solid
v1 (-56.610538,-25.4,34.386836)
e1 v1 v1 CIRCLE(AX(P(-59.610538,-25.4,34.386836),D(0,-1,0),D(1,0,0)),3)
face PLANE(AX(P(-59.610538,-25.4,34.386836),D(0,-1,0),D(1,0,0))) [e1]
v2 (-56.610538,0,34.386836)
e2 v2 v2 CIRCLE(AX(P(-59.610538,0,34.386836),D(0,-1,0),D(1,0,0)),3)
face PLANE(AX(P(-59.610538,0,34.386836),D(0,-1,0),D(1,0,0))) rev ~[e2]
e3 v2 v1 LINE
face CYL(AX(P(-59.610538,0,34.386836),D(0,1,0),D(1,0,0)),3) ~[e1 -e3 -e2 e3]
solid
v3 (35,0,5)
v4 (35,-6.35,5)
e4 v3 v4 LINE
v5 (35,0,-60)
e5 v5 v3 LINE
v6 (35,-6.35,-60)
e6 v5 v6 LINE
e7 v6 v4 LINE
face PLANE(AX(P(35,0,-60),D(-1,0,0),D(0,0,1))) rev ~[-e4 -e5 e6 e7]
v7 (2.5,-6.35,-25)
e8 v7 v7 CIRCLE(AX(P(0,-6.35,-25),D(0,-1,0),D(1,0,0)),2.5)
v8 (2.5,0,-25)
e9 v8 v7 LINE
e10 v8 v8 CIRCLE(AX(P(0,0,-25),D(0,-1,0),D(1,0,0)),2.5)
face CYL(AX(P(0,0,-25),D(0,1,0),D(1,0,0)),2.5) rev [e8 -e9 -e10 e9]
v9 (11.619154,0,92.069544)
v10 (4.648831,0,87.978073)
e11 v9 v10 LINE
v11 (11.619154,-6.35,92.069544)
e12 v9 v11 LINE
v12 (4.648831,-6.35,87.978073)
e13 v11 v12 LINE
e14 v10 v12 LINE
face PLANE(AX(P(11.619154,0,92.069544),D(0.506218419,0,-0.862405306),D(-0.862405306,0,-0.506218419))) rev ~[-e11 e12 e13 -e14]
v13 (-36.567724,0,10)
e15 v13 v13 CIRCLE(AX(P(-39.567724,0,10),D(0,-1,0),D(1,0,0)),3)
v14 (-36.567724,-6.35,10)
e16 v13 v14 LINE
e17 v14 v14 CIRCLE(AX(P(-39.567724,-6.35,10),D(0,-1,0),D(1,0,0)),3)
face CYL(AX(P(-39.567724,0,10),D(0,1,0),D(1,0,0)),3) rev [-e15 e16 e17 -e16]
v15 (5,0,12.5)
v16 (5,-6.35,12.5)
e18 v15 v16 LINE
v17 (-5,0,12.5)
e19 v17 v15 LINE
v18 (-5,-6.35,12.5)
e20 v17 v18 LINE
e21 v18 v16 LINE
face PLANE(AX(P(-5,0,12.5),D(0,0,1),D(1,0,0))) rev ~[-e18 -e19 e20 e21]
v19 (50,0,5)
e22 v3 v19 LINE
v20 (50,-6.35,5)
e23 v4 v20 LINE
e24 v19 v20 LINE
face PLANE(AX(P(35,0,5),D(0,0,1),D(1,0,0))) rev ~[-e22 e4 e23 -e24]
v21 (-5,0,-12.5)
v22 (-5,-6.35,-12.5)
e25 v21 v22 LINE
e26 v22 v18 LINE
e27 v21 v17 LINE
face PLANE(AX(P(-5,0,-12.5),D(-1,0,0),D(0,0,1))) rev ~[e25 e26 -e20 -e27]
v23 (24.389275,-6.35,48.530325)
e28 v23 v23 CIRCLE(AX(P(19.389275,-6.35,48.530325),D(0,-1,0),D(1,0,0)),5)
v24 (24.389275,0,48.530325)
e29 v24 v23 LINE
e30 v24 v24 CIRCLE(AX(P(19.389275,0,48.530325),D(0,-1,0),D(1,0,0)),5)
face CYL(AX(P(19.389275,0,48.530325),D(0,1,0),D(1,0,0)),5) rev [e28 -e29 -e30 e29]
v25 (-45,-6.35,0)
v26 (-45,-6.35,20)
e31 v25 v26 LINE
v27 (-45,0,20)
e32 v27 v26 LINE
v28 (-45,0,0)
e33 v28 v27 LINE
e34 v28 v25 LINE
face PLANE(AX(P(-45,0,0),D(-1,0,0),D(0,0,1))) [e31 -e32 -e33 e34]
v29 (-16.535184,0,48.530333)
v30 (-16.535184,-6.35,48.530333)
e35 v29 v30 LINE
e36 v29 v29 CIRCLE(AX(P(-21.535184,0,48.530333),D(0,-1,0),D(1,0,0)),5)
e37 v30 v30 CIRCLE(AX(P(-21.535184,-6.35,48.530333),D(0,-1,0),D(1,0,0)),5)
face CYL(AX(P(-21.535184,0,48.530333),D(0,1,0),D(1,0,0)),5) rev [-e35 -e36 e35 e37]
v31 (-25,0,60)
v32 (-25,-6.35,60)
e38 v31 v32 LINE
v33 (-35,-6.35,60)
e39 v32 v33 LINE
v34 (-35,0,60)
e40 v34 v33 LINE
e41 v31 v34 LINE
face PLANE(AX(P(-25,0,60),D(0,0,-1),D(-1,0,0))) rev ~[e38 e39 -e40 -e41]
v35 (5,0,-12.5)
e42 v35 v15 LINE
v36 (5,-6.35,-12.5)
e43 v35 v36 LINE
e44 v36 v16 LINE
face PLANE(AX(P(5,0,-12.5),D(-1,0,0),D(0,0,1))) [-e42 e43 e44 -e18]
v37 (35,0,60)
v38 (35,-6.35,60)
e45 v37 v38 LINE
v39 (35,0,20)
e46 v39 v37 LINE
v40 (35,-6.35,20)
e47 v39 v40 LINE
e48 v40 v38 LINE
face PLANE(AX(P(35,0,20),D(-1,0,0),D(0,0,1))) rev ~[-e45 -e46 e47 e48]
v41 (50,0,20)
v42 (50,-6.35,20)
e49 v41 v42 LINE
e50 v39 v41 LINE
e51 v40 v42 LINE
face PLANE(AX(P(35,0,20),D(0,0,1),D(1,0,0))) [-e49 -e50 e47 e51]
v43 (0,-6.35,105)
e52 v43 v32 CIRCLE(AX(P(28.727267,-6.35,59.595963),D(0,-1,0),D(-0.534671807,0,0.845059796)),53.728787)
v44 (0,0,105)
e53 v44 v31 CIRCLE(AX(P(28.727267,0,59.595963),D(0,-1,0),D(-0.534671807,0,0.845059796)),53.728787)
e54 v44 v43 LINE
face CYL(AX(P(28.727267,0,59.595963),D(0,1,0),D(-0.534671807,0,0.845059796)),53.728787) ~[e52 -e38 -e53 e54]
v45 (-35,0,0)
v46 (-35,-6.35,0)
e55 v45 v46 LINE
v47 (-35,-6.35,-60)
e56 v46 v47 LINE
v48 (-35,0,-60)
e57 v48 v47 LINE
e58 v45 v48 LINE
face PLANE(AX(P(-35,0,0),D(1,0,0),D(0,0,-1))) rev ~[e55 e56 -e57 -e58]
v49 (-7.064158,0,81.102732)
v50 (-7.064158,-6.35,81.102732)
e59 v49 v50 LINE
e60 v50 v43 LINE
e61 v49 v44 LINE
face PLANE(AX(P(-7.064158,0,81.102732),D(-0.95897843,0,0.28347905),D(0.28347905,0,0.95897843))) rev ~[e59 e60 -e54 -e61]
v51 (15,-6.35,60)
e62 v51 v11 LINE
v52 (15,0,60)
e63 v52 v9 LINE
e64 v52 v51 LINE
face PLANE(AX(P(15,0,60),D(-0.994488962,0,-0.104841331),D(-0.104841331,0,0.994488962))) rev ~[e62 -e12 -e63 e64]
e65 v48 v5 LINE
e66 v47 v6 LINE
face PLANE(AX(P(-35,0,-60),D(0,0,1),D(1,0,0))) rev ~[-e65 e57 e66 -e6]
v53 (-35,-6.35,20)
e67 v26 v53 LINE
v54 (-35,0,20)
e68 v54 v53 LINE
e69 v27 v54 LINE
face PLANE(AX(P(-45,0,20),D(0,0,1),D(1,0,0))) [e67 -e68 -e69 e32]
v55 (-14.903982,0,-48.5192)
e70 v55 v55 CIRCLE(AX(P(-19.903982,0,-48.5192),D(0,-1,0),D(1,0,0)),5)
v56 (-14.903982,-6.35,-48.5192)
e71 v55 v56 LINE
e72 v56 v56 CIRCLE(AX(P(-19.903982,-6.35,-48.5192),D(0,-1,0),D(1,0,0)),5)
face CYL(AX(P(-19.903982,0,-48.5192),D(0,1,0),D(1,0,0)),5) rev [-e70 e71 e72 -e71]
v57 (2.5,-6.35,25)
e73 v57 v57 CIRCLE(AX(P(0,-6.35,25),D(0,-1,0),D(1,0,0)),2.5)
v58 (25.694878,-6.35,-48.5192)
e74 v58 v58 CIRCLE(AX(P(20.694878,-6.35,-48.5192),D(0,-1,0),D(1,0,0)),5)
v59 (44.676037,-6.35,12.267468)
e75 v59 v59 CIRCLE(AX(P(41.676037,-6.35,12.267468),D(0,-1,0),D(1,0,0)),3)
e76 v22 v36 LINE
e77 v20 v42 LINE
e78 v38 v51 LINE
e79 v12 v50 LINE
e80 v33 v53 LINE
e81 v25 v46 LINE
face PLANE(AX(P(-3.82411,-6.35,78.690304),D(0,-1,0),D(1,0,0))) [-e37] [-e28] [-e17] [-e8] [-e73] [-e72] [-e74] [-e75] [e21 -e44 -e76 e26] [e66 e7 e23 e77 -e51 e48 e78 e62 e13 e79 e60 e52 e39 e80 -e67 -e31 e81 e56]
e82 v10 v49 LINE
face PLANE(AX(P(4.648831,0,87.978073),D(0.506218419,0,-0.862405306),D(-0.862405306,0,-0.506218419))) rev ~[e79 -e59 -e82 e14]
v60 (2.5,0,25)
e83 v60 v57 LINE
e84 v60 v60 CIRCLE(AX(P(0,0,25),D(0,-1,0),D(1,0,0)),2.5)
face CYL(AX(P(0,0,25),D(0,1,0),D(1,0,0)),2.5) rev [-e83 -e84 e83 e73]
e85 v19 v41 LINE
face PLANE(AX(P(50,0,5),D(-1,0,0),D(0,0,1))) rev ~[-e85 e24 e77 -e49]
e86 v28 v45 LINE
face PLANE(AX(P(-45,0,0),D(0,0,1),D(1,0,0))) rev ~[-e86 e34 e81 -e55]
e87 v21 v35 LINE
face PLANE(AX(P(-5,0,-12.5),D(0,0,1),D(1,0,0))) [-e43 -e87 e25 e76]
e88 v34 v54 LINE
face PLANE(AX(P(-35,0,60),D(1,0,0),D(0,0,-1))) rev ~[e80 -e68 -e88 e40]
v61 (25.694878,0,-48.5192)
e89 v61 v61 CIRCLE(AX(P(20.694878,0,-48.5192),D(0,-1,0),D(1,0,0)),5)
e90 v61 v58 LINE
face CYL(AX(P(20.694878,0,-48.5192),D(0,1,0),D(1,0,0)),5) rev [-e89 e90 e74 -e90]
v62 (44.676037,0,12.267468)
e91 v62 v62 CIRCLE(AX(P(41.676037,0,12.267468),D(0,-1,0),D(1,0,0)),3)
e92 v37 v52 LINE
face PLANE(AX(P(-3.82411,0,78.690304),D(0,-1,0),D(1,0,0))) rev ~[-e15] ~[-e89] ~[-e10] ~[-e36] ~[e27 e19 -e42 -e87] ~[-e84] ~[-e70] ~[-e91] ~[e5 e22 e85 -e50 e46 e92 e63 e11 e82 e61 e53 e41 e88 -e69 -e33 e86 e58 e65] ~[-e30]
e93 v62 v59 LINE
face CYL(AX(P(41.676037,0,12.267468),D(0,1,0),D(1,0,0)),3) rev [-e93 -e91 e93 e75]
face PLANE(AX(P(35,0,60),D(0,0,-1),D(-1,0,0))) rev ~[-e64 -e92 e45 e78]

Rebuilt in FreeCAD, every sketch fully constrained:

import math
import FreeCAD as App
import Part
import Sketcher
from FreeCAD import Vector
Q = App.Units.Quantity

doc = App.newDocument("Part")
body = doc.addObject("PartDesign::Body", "Body")

# Sketch on XZ plane
sketch1 = body.newObject("Sketcher::SketchObject", "Sketch")
sketch1.AttachmentSupport = (doc.getObject("XZ_Plane"), [""])
sketch1.MapMode = "FlatFace"
sketch1.addGeometry([
    Part.LineSegment(Vector(15, 60, 0), Vector(11.619154, 92.069544, 0)),  # 0
    Part.LineSegment(Vector(11.619154, 92.069544, 0), Vector(4.648831, 87.978073, 0)),  # 1
    Part.LineSegment(Vector(4.648831, 87.978073, 0), Vector(-7.064158, 81.102732, 0)),  # 2
    Part.LineSegment(Vector(-7.064158, 81.102732, 0), Vector(0, 105, 0)),  # 3
    Part.ArcOfCircle(Part.Circle(Vector(28.727267, 59.595963, 0), Vector(0, 0, 1), 53.728787), math.radians(122.321657), math.radians(179.569135)),  # 4
    Part.LineSegment(Vector(-25, 60, 0), Vector(-35, 60, 0)),  # 5
    Part.LineSegment(Vector(-35, 60, 0), Vector(-35, 20, 0)),  # 6
    Part.LineSegment(Vector(-35, 20, 0), Vector(-45, 20, 0)),  # 7
    Part.LineSegment(Vector(-45, 20, 0), Vector(-45, 0, 0)),  # 8
    Part.LineSegment(Vector(-45, 0, 0), Vector(-35, 0, 0)),  # 9
    Part.LineSegment(Vector(-35, 0, 0), Vector(-35, -60, 0)),  # 10
    Part.LineSegment(Vector(-35, -60, 0), Vector(35, -60, 0)),  # 11
    Part.LineSegment(Vector(35, -60, 0), Vector(35, 5, 0)),  # 12
    Part.LineSegment(Vector(35, 5, 0), Vector(50, 5, 0)),  # 13
    Part.LineSegment(Vector(50, 5, 0), Vector(50, 20, 0)),  # 14
    Part.LineSegment(Vector(50, 20, 0), Vector(35, 20, 0)),  # 15
    Part.LineSegment(Vector(35, 20, 0), Vector(35, 60, 0)),  # 16
    Part.LineSegment(Vector(35, 60, 0), Vector(15, 60, 0)),  # 17
    Part.Circle(Vector(-19.903982, -48.5192, 0), Vector(0, 0, 1), 5),  # 18
    Part.Circle(Vector(0, -25, 0), Vector(0, 0, 1), 2.5),  # 19
    Part.LineSegment(Vector(5, -12.5, 0), Vector(-5, -12.5, 0)),  # 20
    Part.LineSegment(Vector(-5, -12.5, 0), Vector(-5, 12.5, 0)),  # 21
    Part.LineSegment(Vector(-5, 12.5, 0), Vector(5, 12.5, 0)),  # 22
    Part.LineSegment(Vector(5, 12.5, 0), Vector(5, -12.5, 0)),  # 23
    Part.Circle(Vector(20.694878, -48.5192, 0), Vector(0, 0, 1), 5),  # 24
    Part.Circle(Vector(-39.567724, 10, 0), Vector(0, 0, 1), 3),  # 25
    Part.Circle(Vector(0, 25, 0), Vector(0, 0, 1), 2.5),  # 26
    Part.Circle(Vector(-21.535184, 48.530333, 0), Vector(0, 0, 1), 5),  # 27
    Part.Circle(Vector(41.676037, 12.267468, 0), Vector(0, 0, 1), 3),  # 28
    Part.Circle(Vector(19.389275, 48.530325, 0), Vector(0, 0, 1), 5),  # 29
], False)
sketch1.addConstraint([
    Sketcher.Constraint("Coincident", 0, 2, 1, 1),
    Sketcher.Constraint("Coincident", 1, 2, 2, 1),
    Sketcher.Constraint("Coincident", 2, 2, 3, 1),
    Sketcher.Constraint("Coincident", 3, 2, 4, 1),
    Sketcher.Constraint("Coincident", 4, 2, 5, 1),
    Sketcher.Constraint("Coincident", 5, 2, 6, 1),
    Sketcher.Constraint("Coincident", 6, 2, 7, 1),
    Sketcher.Constraint("Coincident", 7, 2, 8, 1),
    Sketcher.Constraint("Coincident", 8, 2, 9, 1),
    Sketcher.Constraint("Coincident", 9, 2, 10, 1),
    Sketcher.Constraint("Coincident", 10, 2, 11, 1),
    Sketcher.Constraint("Coincident", 11, 2, 12, 1),
    Sketcher.Constraint("Coincident", 12, 2, 13, 1),
    Sketcher.Constraint("Coincident", 13, 2, 14, 1),
    Sketcher.Constraint("Coincident", 14, 2, 15, 1),
    Sketcher.Constraint("Coincident", 15, 2, 16, 1),
    Sketcher.Constraint("Coincident", 16, 2, 17, 1),
    Sketcher.Constraint("Coincident", 17, 2, 0, 1),
    Sketcher.Constraint("Coincident", 20, 2, 21, 1),
    Sketcher.Constraint("Coincident", 21, 2, 22, 1),
    Sketcher.Constraint("Coincident", 22, 2, 23, 1),
    Sketcher.Constraint("Coincident", 23, 2, 20, 1),
    Sketcher.Constraint("Horizontal", 5),
    Sketcher.Constraint("Vertical", 6),
    Sketcher.Constraint("Horizontal", 7),
    Sketcher.Constraint("Vertical", 8),
    Sketcher.Constraint("Horizontal", 9),
    Sketcher.Constraint("Vertical", 10),
    Sketcher.Constraint("Horizontal", 11),
    Sketcher.Constraint("Vertical", 12),
    Sketcher.Constraint("Horizontal", 13),
    Sketcher.Constraint("Vertical", 14),
    Sketcher.Constraint("Horizontal", 15),
    Sketcher.Constraint("Vertical", 16),
    Sketcher.Constraint("Horizontal", 17),
    Sketcher.Constraint("Horizontal", 20),
    Sketcher.Constraint("Vertical", 21),
    Sketcher.Constraint("Horizontal", 22),
    Sketcher.Constraint("Vertical", 23),
    Sketcher.Constraint("PointOnObject", 19, 3, -2),
    Sketcher.Constraint("PointOnObject", 26, 3, -2),
    Sketcher.Constraint("PointOnObject", 3, 2, -2),
    Sketcher.Constraint("PointOnObject", 8, 2, -1),
    Sketcher.Constraint("Diameter", 18, Q("10 mm")),
    Sketcher.Constraint("Diameter", 19, Q("5 mm")),
    Sketcher.Constraint("Diameter", 24, Q("10 mm")),
    Sketcher.Constraint("Diameter", 25, Q("6 mm")),
    Sketcher.Constraint("Diameter", 26, Q("5 mm")),
    Sketcher.Constraint("Diameter", 27, Q("10 mm")),
    Sketcher.Constraint("Diameter", 28, Q("6 mm")),
    Sketcher.Constraint("Diameter", 29, Q("10 mm")),
    Sketcher.Constraint("DistanceX", 5, 2, 5, 1, Q("10 mm")),
    Sketcher.Constraint("DistanceX", 7, 2, 7, 1, Q("10 mm")),
    Sketcher.Constraint("DistanceX", 9, 1, 9, 2, Q("10 mm")),
    Sketcher.Constraint("DistanceX", 11, 1, 11, 2, Q("70 mm")),
    Sketcher.Constraint("DistanceX", 13, 1, 13, 2, Q("15 mm")),
    Sketcher.Constraint("DistanceX", 15, 2, 15, 1, Q("15 mm")),
    Sketcher.Constraint("DistanceX", 17, 2, 17, 1, Q("20 mm")),
    Sketcher.Constraint("DistanceX", 20, 2, 20, 1, Q("10 mm")),
    Sketcher.Constraint("DistanceY", 6, 2, 6, 1, Q("40 mm")),
    Sketcher.Constraint("DistanceY", 8, 2, 8, 1, Q("20 mm")),
    Sketcher.Constraint("DistanceY", 10, 2, 10, 1, Q("60 mm")),
    Sketcher.Constraint("DistanceY", 12, 1, 12, 2, Q("65 mm")),
    Sketcher.Constraint("DistanceY", 14, 1, 14, 2, Q("15 mm")),
    Sketcher.Constraint("DistanceY", 16, 1, 16, 2, Q("40 mm")),
    Sketcher.Constraint("DistanceY", 21, 1, 21, 2, Q("25 mm")),
    Sketcher.Constraint("DistanceY", 19, 3, -1, 1, Q("25 mm")),
    Sketcher.Constraint("DistanceY", -1, 1, 25, 3, Q("10 mm")),
    Sketcher.Constraint("DistanceY", -1, 1, 26, 3, Q("25 mm")),
    Sketcher.Constraint("DistanceY", -1, 1, 3, 2, Q("105 mm")),
    Sketcher.Constraint("DistanceX", 4, 2, -1, 1, Q("25 mm")),
    Sketcher.Constraint("DistanceX", 20, 2, -1, 1, Q("5 mm")),
    Sketcher.Constraint("DistanceY", 20, 2, -1, 1, Q("12.5 mm")),
    Sketcher.Constraint("Radius", 4, Q("53.728787 mm")),
    Sketcher.Constraint("DistanceX", 25, 3, 29, 3, Q("58.956999 mm")),
    Sketcher.Constraint("DistanceY", 18, 3, -1, 1, Q("48.5192 mm")),
    Sketcher.Constraint("DistanceY", 24, 3, -1, 1, Q("48.5192 mm")),
    Sketcher.Constraint("DistanceX", 25, 3, 24, 3, Q("60.262602 mm")),
    Sketcher.Constraint("DistanceY", 27, 3, 2, 2, Q("32.572399 mm")),
    Sketcher.Constraint("Distance", 0, Q("32.24726 mm")),
    Sketcher.Constraint("Distance", 1, Q("8.082422 mm")),
    Sketcher.Constraint("DistanceX", 18, 3, -1, 1, Q("19.903982 mm")),
    Sketcher.Constraint("DistanceX", -1, 1, 24, 3, Q("20.694878 mm")),
    Sketcher.Constraint("DistanceY", -1, 1, 28, 3, Q("12.267468 mm")),
    Sketcher.Constraint("DistanceX", -1, 1, 1, 2, Q("4.648831 mm")),
    Sketcher.Constraint("DistanceX", 25, 3, 27, 3, Q("18.03254 mm")),
    Sketcher.Constraint("DistanceY", 27, 3, 4, 3, Q("11.06563 mm")),
    Sketcher.Constraint("DistanceX", 4, 3, 28, 3, Q("12.94877 mm")),
    Sketcher.Constraint("DistanceY", 4, 3, 0, 2, Q("32.473581 mm")),
    Sketcher.Constraint("DistanceY", 29, 3, 0, 2, Q("43.539219 mm")),
    Sketcher.Constraint("DistanceX", 2, 2, 1, 2, Q("11.712989 mm")),
])
pad1 = body.newObject("PartDesign::Pad", "Pad")
pad1.Profile = sketch1
pad1.Length = 6.35
body2 = doc.addObject("PartDesign::Body", "Body001")

# Sketch on XZ plane
sketch2 = body2.newObject("Sketcher::SketchObject", "Sketch001")
sketch2.AttachmentSupport = (doc.getObject("XZ_Plane001"), [""])
sketch2.MapMode = "FlatFace"
sketch2.addGeometry(Part.Circle(Vector(-59.610538, 34.386836, 0), Vector(0, 0, 1), 3), False)
sketch2.addConstraint([
    Sketcher.Constraint("Diameter", 0, Q("6 mm")),
    Sketcher.Constraint("DistanceX", 0, 3, -1, 1, Q("59.610538 mm")),
    Sketcher.Constraint("DistanceY", -1, 1, 0, 3, Q("34.386836 mm")),
])
pad2 = body2.newObject("PartDesign::Pad", "Pad001")
pad2.Profile = sketch2
pad2.Length = 25.4

doc.recompute()
